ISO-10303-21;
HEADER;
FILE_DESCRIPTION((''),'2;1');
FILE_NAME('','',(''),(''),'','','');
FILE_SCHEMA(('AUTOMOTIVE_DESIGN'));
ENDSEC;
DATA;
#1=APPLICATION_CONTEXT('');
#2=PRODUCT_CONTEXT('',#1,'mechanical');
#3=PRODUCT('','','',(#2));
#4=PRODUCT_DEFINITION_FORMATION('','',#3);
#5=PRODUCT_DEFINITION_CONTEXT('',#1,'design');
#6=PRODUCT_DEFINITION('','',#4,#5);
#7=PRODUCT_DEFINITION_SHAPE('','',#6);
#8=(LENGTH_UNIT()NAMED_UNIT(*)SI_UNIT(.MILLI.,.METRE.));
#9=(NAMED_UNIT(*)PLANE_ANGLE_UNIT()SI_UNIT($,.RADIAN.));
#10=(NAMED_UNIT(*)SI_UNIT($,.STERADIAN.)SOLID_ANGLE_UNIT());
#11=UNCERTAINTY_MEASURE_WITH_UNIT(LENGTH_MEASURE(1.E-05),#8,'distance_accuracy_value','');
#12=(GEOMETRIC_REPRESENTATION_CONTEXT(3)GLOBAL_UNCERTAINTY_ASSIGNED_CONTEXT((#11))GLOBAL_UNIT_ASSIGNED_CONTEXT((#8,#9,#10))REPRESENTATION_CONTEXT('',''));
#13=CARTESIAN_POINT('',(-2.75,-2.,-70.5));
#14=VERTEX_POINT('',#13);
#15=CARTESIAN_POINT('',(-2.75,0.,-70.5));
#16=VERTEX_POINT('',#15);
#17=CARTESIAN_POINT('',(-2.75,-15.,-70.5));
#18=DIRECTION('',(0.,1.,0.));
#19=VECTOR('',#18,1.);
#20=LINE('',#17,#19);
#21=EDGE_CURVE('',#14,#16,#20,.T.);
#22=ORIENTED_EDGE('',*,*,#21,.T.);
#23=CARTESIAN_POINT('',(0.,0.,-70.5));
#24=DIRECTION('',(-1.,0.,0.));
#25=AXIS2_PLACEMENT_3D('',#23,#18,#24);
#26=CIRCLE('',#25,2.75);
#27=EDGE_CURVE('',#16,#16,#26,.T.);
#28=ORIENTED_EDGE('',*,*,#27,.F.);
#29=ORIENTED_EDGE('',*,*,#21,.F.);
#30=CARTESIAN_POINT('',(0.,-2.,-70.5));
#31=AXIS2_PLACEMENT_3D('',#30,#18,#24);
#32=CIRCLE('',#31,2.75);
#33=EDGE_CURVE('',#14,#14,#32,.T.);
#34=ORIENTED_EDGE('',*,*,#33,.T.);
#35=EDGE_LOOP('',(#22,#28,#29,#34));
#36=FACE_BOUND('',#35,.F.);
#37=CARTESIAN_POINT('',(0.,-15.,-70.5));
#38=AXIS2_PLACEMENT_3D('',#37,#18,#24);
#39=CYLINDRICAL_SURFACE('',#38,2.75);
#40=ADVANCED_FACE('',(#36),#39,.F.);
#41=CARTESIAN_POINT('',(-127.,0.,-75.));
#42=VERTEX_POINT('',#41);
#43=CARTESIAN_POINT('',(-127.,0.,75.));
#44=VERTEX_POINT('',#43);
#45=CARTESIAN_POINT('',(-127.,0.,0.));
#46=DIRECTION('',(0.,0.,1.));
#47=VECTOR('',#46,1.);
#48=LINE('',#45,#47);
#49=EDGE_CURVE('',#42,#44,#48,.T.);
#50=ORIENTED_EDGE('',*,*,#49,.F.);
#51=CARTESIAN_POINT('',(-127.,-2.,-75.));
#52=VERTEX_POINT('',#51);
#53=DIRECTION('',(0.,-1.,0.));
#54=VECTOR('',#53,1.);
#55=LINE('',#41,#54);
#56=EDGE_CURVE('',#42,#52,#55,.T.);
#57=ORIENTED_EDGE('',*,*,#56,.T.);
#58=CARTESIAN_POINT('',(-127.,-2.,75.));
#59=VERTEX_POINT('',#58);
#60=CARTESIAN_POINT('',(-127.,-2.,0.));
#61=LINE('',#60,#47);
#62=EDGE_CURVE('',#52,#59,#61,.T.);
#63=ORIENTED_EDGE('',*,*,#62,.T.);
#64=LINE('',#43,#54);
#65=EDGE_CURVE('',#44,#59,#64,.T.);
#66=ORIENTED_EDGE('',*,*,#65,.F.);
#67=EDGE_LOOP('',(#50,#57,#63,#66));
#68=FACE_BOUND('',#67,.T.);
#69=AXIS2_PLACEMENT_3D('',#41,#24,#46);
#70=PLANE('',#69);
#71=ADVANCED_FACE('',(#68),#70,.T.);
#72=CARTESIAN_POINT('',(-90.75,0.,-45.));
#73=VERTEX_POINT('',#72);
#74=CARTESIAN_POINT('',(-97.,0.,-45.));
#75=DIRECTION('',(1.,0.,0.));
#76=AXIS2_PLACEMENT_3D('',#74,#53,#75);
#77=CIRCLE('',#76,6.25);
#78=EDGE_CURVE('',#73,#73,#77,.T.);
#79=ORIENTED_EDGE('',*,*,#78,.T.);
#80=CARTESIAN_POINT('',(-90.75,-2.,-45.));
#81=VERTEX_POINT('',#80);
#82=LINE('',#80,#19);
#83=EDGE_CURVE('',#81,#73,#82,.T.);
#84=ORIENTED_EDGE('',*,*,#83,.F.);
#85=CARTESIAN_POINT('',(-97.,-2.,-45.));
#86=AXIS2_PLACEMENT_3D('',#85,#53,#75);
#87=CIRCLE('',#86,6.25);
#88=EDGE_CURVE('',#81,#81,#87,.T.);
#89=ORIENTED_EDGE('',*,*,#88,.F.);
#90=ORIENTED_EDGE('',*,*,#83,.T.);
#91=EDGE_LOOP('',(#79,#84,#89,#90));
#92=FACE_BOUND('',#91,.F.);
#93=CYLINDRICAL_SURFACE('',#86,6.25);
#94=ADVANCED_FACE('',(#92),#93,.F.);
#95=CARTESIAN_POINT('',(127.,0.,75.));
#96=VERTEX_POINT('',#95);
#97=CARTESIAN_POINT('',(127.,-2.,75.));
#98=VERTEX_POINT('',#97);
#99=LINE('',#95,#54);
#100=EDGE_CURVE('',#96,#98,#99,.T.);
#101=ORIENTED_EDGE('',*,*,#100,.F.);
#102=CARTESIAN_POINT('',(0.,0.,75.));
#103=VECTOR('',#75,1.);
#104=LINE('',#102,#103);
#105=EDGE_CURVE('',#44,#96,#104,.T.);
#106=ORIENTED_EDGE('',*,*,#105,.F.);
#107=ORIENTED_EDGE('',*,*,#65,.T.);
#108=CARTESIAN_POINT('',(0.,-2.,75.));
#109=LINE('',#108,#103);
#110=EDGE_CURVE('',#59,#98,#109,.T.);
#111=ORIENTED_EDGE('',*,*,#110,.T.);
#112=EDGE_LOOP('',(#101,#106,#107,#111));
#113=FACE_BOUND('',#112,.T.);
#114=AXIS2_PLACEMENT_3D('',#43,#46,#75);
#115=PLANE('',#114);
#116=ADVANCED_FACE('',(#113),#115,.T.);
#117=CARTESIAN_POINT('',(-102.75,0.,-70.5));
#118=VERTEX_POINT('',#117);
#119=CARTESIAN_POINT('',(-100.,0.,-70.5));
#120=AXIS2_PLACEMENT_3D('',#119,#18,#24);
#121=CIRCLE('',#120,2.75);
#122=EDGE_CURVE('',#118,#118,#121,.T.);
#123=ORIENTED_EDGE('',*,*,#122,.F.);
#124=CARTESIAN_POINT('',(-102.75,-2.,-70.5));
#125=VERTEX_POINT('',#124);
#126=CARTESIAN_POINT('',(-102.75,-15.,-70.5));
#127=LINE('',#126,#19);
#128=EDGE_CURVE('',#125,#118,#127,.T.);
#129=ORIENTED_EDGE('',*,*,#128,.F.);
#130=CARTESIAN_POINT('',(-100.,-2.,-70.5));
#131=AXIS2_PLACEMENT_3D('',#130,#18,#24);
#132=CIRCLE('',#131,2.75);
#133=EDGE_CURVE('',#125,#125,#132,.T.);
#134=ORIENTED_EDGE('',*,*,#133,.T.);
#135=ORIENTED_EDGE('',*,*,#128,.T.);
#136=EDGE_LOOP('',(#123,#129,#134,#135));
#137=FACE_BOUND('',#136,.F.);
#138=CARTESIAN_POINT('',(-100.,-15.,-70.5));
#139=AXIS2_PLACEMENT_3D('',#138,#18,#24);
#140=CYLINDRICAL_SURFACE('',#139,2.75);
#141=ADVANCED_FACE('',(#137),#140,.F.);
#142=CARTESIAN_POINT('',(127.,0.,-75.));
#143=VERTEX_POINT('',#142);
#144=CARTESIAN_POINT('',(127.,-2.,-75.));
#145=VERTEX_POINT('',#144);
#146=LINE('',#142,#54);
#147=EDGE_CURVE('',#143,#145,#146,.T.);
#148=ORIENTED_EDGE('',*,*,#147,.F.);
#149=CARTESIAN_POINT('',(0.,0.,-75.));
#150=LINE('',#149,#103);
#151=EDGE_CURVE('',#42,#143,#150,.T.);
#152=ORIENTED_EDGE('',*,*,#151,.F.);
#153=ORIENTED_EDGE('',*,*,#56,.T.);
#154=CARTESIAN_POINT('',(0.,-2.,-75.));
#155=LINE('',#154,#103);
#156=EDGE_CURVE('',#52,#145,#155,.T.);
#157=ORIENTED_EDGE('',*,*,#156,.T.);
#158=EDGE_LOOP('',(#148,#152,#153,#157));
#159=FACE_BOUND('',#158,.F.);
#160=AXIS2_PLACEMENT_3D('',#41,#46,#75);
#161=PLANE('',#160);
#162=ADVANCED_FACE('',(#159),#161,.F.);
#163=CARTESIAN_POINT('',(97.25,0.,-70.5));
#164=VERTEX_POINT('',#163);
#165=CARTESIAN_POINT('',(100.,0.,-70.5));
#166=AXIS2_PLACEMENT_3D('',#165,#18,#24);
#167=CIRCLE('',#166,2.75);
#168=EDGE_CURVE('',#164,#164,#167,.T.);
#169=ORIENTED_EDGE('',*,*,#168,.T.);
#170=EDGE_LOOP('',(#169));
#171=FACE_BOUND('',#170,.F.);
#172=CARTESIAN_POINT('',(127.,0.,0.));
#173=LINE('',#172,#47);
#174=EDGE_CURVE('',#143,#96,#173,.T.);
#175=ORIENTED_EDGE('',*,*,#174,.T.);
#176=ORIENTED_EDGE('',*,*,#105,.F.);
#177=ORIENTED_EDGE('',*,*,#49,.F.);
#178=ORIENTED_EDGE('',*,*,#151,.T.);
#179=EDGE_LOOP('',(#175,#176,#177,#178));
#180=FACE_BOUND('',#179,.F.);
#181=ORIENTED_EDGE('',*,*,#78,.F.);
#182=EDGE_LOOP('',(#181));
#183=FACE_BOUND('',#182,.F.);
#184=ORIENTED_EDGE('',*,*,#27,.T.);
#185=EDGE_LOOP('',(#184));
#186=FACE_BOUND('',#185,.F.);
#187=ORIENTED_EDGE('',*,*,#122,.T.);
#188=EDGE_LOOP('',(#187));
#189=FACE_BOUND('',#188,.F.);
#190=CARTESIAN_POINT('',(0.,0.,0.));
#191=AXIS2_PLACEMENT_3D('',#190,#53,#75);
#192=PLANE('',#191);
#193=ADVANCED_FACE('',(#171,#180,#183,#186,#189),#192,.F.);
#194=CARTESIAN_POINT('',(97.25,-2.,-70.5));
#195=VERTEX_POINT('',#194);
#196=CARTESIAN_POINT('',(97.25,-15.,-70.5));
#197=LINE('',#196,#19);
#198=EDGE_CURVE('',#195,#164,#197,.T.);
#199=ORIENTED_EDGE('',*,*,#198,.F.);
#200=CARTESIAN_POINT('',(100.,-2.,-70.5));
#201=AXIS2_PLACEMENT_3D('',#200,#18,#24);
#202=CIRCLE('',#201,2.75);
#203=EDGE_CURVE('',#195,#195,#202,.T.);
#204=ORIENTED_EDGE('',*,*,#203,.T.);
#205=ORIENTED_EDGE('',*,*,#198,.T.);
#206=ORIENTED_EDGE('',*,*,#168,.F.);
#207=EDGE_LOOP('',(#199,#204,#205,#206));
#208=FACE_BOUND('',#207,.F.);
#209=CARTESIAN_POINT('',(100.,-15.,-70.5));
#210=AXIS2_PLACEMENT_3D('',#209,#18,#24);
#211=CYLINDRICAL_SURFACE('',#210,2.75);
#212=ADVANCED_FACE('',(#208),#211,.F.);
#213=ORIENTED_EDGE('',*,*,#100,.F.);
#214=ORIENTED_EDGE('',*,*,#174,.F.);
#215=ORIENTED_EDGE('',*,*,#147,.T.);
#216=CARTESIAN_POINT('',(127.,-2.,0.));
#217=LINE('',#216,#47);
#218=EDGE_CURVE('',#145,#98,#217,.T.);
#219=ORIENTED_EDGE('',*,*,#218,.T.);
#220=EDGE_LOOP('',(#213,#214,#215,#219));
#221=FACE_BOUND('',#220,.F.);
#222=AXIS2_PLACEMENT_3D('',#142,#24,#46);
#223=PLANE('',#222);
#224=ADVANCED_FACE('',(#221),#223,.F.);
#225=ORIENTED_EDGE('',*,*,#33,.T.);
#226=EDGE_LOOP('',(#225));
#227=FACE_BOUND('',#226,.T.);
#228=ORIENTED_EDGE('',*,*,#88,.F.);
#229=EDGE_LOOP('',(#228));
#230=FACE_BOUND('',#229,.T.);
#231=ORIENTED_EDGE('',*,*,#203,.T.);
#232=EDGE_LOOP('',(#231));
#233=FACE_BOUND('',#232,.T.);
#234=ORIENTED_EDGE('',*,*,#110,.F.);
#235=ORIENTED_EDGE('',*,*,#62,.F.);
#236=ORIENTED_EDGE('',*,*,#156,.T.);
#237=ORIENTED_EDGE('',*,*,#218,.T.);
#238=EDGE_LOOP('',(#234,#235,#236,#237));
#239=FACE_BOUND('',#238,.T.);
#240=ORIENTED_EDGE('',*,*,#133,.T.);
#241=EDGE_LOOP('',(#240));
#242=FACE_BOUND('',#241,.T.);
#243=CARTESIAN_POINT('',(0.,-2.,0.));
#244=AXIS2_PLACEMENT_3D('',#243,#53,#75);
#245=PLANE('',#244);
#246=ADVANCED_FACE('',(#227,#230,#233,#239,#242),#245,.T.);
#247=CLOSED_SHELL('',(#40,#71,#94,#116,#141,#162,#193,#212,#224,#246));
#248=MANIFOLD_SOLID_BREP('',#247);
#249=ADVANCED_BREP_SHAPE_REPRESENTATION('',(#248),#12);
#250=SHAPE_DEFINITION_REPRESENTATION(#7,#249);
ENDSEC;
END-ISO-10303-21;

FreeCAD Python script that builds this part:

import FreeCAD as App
import Part
import Sketcher

V = App.Vector
Q = App.Units.Quantity

doc = App.newDocument("Part")
params = doc.addObject("Spreadsheet::Sheet", "Params")
for row, (alias, value) in enumerate([
    ("sketch1_width", "254 mm"),
    ("sketch1_height", "150 mm"),
    ("pad1_length", "2 mm"),
    ("sketch2_diameter", "12.5 mm"),
    ("pocket1_length", "25 mm"),
    ("sketch3_diameter", "5.5 mm"),
    ("hole_diameter", "5.5 mm"),
    ("hole_depth", "13 mm"),
], start=1):
    params.set(f"A{row}", alias)
    params.set(f"B{row}", "=" + value)
    params.setAlias(f"B{row}", alias)

body = doc.addObject("PartDesign::Body", "Body")

# Sketch on XZ plane
sketch1 = body.newObject("Sketcher::SketchObject", "Sketch")
sketch1.AttachmentSupport = (doc.getObject("XZ_Plane"), [""])
sketch1.MapMode = "FlatFace"
sketch1.addGeometry([
    Part.LineSegment(V(-127, 75, 0), V(-127, -75, 0)),
    Part.LineSegment(V(-127, -75, 0), V(127, -75, 0)),
    Part.LineSegment(V(127, -75, 0), V(127, 75, 0)),
    Part.LineSegment(V(127, 75, 0), V(-127, 75, 0)),
], False)
sketch1.addConstraint([
    Sketcher.Constraint("Coincident", 0, 2, 1, 1),
    Sketcher.Constraint("Coincident", 1, 2, 2, 1),
    Sketcher.Constraint("Coincident", 2, 2, 3, 1),
    Sketcher.Constraint("Coincident", 3, 2, 0, 1),
    Sketcher.Constraint("Vertical", 0),
    Sketcher.Constraint("Horizontal", 1),
    Sketcher.Constraint("Vertical", 2),
    Sketcher.Constraint("Horizontal", 3),
    Sketcher.Constraint("Symmetric", 0, 2, 2, 2, -1, 1),
    Sketcher.Constraint("DistanceX", 1, 1, 1, 2, Q("254 mm")),
    Sketcher.Constraint("DistanceY", 0, 2, 0, 1, Q("150 mm")),
])
sketch1.setExpression("Constraints[9]", "Params.sketch1_width")
sketch1.setExpression("Constraints[10]", "Params.sketch1_height")
pad1 = body.newObject("PartDesign::Pad", "Pad")
pad1.Profile = sketch1
pad1.setExpression("Length", "Params.pad1_length")

# Sketch on XZ plane
sketch2 = body.newObject("Sketcher::SketchObject", "Sketch001")
sketch2.AttachmentSupport = (doc.getObject("XZ_Plane"), [""])
sketch2.MapMode = "FlatFace"
sketch2.AttachmentOffset = App.Placement(V(0, 0, 2), App.Rotation())
sketch2.addGeometry(Part.Circle(V(-97, -45, 0), V(0, 0, 1), 6.25), False)
sketch2.addConstraint([
    Sketcher.Constraint("Diameter", 0, Q("12.5 mm")),
    Sketcher.Constraint("DistanceX", 0, 3, -1, 1, Q("97 mm")),
    Sketcher.Constraint("DistanceY", 0, 3, -1, 1, Q("45 mm")),
])
sketch2.setExpression("Constraints[0]", "Params.sketch2_diameter")
pocket1 = body.newObject("PartDesign::Pocket", "Pocket")
pocket1.Profile = sketch2
pocket1.setExpression("Length", "Params.pocket1_length")

# Sketch on XZ plane
sketch3 = body.newObject("Sketcher::SketchObject", "Sketch002")
sketch3.AttachmentSupport = (doc.getObject("XZ_Plane"), [""])
sketch3.MapMode = "FlatFace"
sketch3.AttachmentOffset = App.Placement(V(0, 0, 2), App.Rotation())
sketch3.addGeometry([
    Part.Circle(V(-100, -70.5, 0), V(0, 0, 1), 2.75),
    Part.Circle(V(0, -70.5, 0), V(0, 0, 1), 2.75),
    Part.Circle(V(100, -70.5, 0), V(0, 0, 1), 2.75),
], False)
sketch3.addConstraint([
    Sketcher.Constraint("Equal", 0, 1),
    Sketcher.Constraint("Equal", 1, 2),
    Sketcher.Constraint("Symmetric", 0, 3, 2, 3, -2),
    Sketcher.Constraint("PointOnObject", 1, 3, -2),
    Sketcher.Constraint("Horizontal", 0, 3, 1, 3),
    Sketcher.Constraint("Diameter", 0, Q("5.5 mm")),
    Sketcher.Constraint("DistanceX", 0, 3, -1, 1, Q("100 mm")),
    Sketcher.Constraint("DistanceY", 0, 3, -1, 1, Q("70.5 mm")),
])
sketch3.setExpression("Constraints[5]", "Params.sketch3_diameter")
doc.recompute()
hole = body.newObject("PartDesign::Hole", "Hole")
hole.Profile = sketch3
hole.ThreadType = "None"
hole.setExpression("Diameter", "Params.hole_diameter")
hole.DepthType = "Dimension"
hole.setExpression("Depth", "Params.hole_depth")
hole.DrillPoint = "Angled"
hole.DrillPointAngle = 118

doc.recompute()
